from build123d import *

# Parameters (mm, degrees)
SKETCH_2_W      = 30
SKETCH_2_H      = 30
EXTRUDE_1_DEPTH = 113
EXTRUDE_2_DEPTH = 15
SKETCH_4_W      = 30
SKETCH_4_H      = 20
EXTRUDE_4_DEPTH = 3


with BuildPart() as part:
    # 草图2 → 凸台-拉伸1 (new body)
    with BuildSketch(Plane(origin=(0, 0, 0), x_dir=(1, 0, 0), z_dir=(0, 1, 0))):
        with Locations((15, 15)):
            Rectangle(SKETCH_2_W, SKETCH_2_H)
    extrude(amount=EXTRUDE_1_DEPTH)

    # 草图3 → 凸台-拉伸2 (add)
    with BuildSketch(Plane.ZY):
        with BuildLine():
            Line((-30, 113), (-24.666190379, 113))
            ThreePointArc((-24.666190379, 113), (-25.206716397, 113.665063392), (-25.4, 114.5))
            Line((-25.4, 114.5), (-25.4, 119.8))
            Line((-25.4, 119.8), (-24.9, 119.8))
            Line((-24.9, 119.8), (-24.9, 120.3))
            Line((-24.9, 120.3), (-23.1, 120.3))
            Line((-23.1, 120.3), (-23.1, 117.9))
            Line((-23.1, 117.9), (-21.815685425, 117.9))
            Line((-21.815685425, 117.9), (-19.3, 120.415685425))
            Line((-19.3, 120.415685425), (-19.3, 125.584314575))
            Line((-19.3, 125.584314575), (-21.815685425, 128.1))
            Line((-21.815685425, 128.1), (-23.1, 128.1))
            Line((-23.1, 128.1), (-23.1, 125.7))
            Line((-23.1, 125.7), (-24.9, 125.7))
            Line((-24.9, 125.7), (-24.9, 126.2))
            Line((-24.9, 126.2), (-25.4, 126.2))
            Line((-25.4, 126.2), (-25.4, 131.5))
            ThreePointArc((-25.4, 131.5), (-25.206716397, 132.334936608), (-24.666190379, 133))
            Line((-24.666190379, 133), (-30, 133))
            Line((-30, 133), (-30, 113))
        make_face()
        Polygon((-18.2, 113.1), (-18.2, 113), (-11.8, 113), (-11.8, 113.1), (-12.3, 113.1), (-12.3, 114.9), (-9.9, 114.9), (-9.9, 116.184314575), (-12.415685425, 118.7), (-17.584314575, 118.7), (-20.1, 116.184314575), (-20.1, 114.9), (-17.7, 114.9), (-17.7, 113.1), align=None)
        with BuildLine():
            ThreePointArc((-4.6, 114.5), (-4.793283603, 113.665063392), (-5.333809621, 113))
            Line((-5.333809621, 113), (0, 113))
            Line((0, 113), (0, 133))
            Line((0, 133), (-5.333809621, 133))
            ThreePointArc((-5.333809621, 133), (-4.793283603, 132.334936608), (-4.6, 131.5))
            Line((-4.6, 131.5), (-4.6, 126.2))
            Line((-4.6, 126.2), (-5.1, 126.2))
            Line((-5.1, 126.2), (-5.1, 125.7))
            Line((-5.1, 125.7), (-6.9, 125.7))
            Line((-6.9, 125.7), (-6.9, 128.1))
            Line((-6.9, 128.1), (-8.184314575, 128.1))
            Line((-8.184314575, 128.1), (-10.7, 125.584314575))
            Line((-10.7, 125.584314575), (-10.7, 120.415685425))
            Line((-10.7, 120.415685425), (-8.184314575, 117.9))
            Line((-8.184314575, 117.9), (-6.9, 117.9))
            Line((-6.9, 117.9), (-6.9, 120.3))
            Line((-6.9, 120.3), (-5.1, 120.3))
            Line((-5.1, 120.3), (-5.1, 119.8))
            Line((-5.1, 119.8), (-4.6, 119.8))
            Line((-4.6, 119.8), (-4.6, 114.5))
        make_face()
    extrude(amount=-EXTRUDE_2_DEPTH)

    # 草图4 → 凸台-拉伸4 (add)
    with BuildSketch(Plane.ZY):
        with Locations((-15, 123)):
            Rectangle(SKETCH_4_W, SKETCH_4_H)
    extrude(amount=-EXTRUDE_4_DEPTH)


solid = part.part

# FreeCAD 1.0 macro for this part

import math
import FreeCAD as App
import Part
import Sketcher
from FreeCAD import Vector

doc = App.newDocument("Part")
body = doc.addObject("PartDesign::Body", "Body")

sketch1 = doc.addObject("Sketcher::SketchObject", "Sketch")
body.addObject(sketch1)
sketch1.AttachmentSupport = (doc.XZ_Plane, [""])
sketch1.MapMode = "FlatFace"
sketch1.addGeometry(Part.LineSegment(Vector(0, -30, 0), Vector(0, 0, 0)), False)
sketch1.addGeometry(Part.LineSegment(Vector(0, 0, 0), Vector(30, 0, 0)), False)
sketch1.addGeometry(Part.LineSegment(Vector(30, 0, 0), Vector(30, -30, 0)), False)
sketch1.addGeometry(Part.LineSegment(Vector(30, -30, 0), Vector(0, -30, 0)), False)
sketch1.addConstraint(Sketcher.Constraint("Coincident", 0, 2, 1, 1))
sketch1.addConstraint(Sketcher.Constraint("Coincident", 1, 2, 2, 1))
sketch1.addConstraint(Sketcher.Constraint("Coincident", 2, 2, 3, 1))
sketch1.addConstraint(Sketcher.Constraint("Coincident", 3, 2, 0, 1))
sketch1.addConstraint(Sketcher.Constraint("Vertical", 0))
sketch1.addConstraint(Sketcher.Constraint("Horizontal", 1))
sketch1.addConstraint(Sketcher.Constraint("Vertical", 2))
sketch1.addConstraint(Sketcher.Constraint("Horizontal", 3))
sketch1.addConstraint(Sketcher.Constraint("Coincident", 0, 2, -1, 1))
sketch1.addConstraint(Sketcher.Constraint("Equal", 3, 0))
sketch1.addConstraint(Sketcher.Constraint("DistanceX", 1, 1, 1, 2, 30.0))
pad1 = doc.addObject("PartDesign::Pad", "Pad")
body.addObject(pad1)
pad1.Profile = sketch1
pad1.Length = 113
pad1.Reversed = True

sketch2 = doc.addObject("Sketcher::SketchObject", "Sketch001")
body.addObject(sketch2)
sketch2.AttachmentSupport = (doc.YZ_Plane, [""])
sketch2.MapMode = "FlatFace"
sketch2.addGeometry(Part.LineSegment(Vector(113, -30, 0), Vector(113, -24.67, 0)), False)
sketch2.addGeometry(Part.ArcOfCircle(Part.Circle(Vector(114.5, -23.5, 0), Vector(0, 0, 1), 1.9), math.radians(-142), math.radians(-90)), False)
sketch2.addGeometry(Part.LineSegment(Vector(114.5, -25.4, 0), Vector(119.8, -25.4, 0)), False)
sketch2.addGeometry(Part.LineSegment(Vector(119.8, -25.4, 0), Vector(119.8, -24.9, 0)), False)
sketch2.addGeometry(Part.LineSegment(Vector(119.8, -24.9, 0), Vector(120.3, -24.9, 0)), False)
sketch2.addGeometry(Part.LineSegment(Vector(120.3, -24.9, 0), Vector(120.3, -23.1, 0)), False)
sketch2.addGeometry(Part.LineSegment(Vector(120.3, -23.1, 0), Vector(117.9, -23.1, 0)), False)
sketch2.addGeometry(Part.LineSegment(Vector(117.9, -23.1, 0), Vector(117.9, -21.82, 0)), False)
sketch2.addGeometry(Part.LineSegment(Vector(117.9, -21.82, 0), Vector(120.42, -19.3, 0)), False)
sketch2.addGeometry(Part.LineSegment(Vector(120.42, -19.3, 0), Vector(125.58, -19.3, 0)), False)
sketch2.addGeometry(Part.LineSegment(Vector(125.58, -19.3, 0), Vector(128.1, -21.82, 0)), False)
sketch2.addGeometry(Part.LineSegment(Vector(128.1, -21.82, 0), Vector(128.1, -23.1, 0)), False)
sketch2.addGeometry(Part.LineSegment(Vector(128.1, -23.1, 0), Vector(125.7, -23.1, 0)), False)
sketch2.addGeometry(Part.LineSegment(Vector(125.7, -23.1, 0), Vector(125.7, -24.9, 0)), False)
sketch2.addGeometry(Part.LineSegment(Vector(125.7, -24.9, 0), Vector(126.2, -24.9, 0)), False)
sketch2.addGeometry(Part.LineSegment(Vector(126.2, -24.9, 0), Vector(126.2, -25.4, 0)), False)
sketch2.addGeometry(Part.LineSegment(Vector(126.2, -25.4, 0), Vector(131.5, -25.4, 0)), False)
sketch2.addGeometry(Part.ArcOfCircle(Part.Circle(Vector(131.5, -23.5, 0), Vector(0, 0, 1), 1.9), math.radians(-90), math.radians(-38)), False)
sketch2.addGeometry(Part.LineSegment(Vector(133, -24.67, 0), Vector(133, -30, 0)), False)
sketch2.addGeometry(Part.LineSegment(Vector(133, -30, 0), Vector(113, -30, 0)), False)
sketch2.addGeometry(Part.LineSegment(Vector(113.1, -18.2, 0), Vector(113, -18.2, 0)), False)
sketch2.addGeometry(Part.LineSegment(Vector(113, -18.2, 0), Vector(113, -11.8, 0)), False)
sketch2.addGeometry(Part.LineSegment(Vector(113, -11.8, 0), Vector(113.1, -11.8, 0)), False)
sketch2.addGeometry(Part.LineSegment(Vector(113.1, -11.8, 0), Vector(113.1, -12.3, 0)), False)
sketch2.addGeometry(Part.LineSegment(Vector(113.1, -12.3, 0), Vector(114.9, -12.3, 0)), False)
sketch2.addGeometry(Part.LineSegment(Vector(114.9, -12.3, 0), Vector(114.9, -9.9, 0)), False)
sketch2.addGeometry(Part.LineSegment(Vector(114.9, -9.9, 0), Vector(116.18, -9.9, 0)), False)
sketch2.addGeometry(Part.LineSegment(Vector(116.18, -9.9, 0), Vector(118.7, -12.42, 0)), False)
sketch2.addGeometry(Part.LineSegment(Vector(118.7, -12.42, 0), Vector(118.7, -17.58, 0)), False)
sketch2.addGeometry(Part.LineSegment(Vector(118.7, -17.58, 0), Vector(116.18, -20.1, 0)), False)
sketch2.addGeometry(Part.LineSegment(Vector(116.18, -20.1, 0), Vector(114.9, -20.1, 0)), False)
sketch2.addGeometry(Part.LineSegment(Vector(114.9, -20.1, 0), Vector(114.9, -17.7, 0)), False)
sketch2.addGeometry(Part.LineSegment(Vector(114.9, -17.7, 0), Vector(113.1, -17.7, 0)), False)
sketch2.addGeometry(Part.LineSegment(Vector(113.1, -17.7, 0), Vector(113.1, -18.2, 0)), False)
sketch2.addGeometry(Part.ArcOfCircle(Part.Circle(Vector(114.5, -6.5, 0), Vector(0, 0, 1), 1.9), math.radians(90), math.radians(142)), False)
sketch2.addGeometry(Part.LineSegment(Vector(113, -5.33, 0), Vector(113, 0, 0)), False)
sketch2.addGeometry(Part.LineSegment(Vector(113, 0, 0), Vector(133, 0, 0)), False)
sketch2.addGeometry(Part.LineSegment(Vector(133, 0, 0), Vector(133, -5.33, 0)), False)
sketch2.addGeometry(Part.ArcOfCircle(Part.Circle(Vector(131.5, -6.5, 0), Vector(0, 0, 1), 1.9), math.radians(38), math.radians(90)), False)
sketch2.addGeometry(Part.LineSegment(Vector(131.5, -4.6, 0), Vector(126.2, -4.6, 0)), False)
sketch2.addGeometry(Part.LineSegment(Vector(126.2, -4.6, 0), Vector(126.2, -5.1, 0)), False)
sketch2.addGeometry(Part.LineSegment(Vector(126.2, -5.1, 0), Vector(125.7, -5.1, 0)), False)
sketch2.addGeometry(Part.LineSegment(Vector(125.7, -5.1, 0), Vector(125.7, -6.9, 0)), False)
sketch2.addGeometry(Part.LineSegment(Vector(125.7, -6.9, 0), Vector(128.1, -6.9, 0)), False)
sketch2.addGeometry(Part.LineSegment(Vector(128.1, -6.9, 0), Vector(128.1, -8.18, 0)), False)
sketch2.addGeometry(Part.LineSegment(Vector(128.1, -8.18, 0), Vector(125.58, -10.7, 0)), False)
sketch2.addGeometry(Part.LineSegment(Vector(125.58, -10.7, 0), Vector(120.42, -10.7, 0)), False)
sketch2.addGeometry(Part.LineSegment(Vector(120.42, -10.7, 0), Vector(117.9, -8.18, 0)), False)
sketch2.addGeometry(Part.LineSegment(Vector(117.9, -8.18, 0), Vector(117.9, -6.9, 0)), False)
sketch2.addGeometry(Part.LineSegment(Vector(117.9, -6.9, 0), Vector(120.3, -6.9, 0)), False)
sketch2.addGeometry(Part.LineSegment(Vector(120.3, -6.9, 0), Vector(120.3, -5.1, 0)), False)
sketch2.addGeometry(Part.LineSegment(Vector(120.3, -5.1, 0), Vector(119.8, -5.1, 0)), False)
sketch2.addGeometry(Part.LineSegment(Vector(119.8, -5.1, 0), Vector(119.8, -4.6, 0)), False)
sketch2.addGeometry(Part.LineSegment(Vector(119.8, -4.6, 0), Vector(114.5, -4.6, 0)), False)
sketch2.addConstraint(Sketcher.Constraint("Coincident", 0, 2, 1, 1))
sketch2.addConstraint(Sketcher.Constraint("Tangent", 1, 2, 2, 1))
sketch2.addConstraint(Sketcher.Constraint("Coincident", 2, 2, 3, 1))
sketch2.addConstraint(Sketcher.Constraint("Coincident", 3, 2, 4, 1))
sketch2.addConstraint(Sketcher.Constraint("Coincident", 4, 2, 5, 1))
sketch2.addConstraint(Sketcher.Constraint("Coincident", 5, 2, 6, 1))
sketch2.addConstraint(Sketcher.Constraint("Coincident", 6, 2, 7, 1))
sketch2.addConstraint(Sketcher.Constraint("Coincident", 7, 2, 8, 1))
sketch2.addConstraint(Sketcher.Constraint("Coincident", 8, 2, 9, 1))
sketch2.addConstraint(Sketcher.Constraint("Coincident", 9, 2, 10, 1))
sketch2.addConstraint(Sketcher.Constraint("Coincident", 10, 2, 11, 1))
sketch2.addConstraint(Sketcher.Constraint("Coincident", 11, 2, 12, 1))
sketch2.addConstraint(Sketcher.Constraint("Coincident", 12, 2, 13, 1))
sketch2.addConstraint(Sketcher.Constraint("Coincident", 13, 2, 14, 1))
sketch2.addConstraint(Sketcher.Constraint("Coincident", 14, 2, 15, 1))
sketch2.addConstraint(Sketcher.Constraint("Coincident", 15, 2, 16, 1))
sketch2.addConstraint(Sketcher.Constraint("Tangent", 16, 2, 17, 1))
sketch2.addConstraint(Sketcher.Constraint("Coincident", 17, 2, 18, 1))
sketch2.addConstraint(Sketcher.Constraint("Coincident", 18, 2, 19, 1))
sketch2.addConstraint(Sketcher.Constraint("Coincident", 19, 2, 0, 1))
sketch2.addConstraint(Sketcher.Constraint("Coincident", 20, 2, 21, 1))
sketch2.addConstraint(Sketcher.Constraint("Coincident", 21, 2, 22, 1))
sketch2.addConstraint(Sketcher.Constraint("Coincident", 22, 2, 23, 1))
sketch2.addConstraint(Sketcher.Constraint("Coincident", 23, 2, 24, 1))
sketch2.addConstraint(Sketcher.Constraint("Coincident", 24, 2, 25, 1))
sketch2.addConstraint(Sketcher.Constraint("Coincident", 25, 2, 26, 1))
sketch2.addConstraint(Sketcher.Constraint("Coincident", 26, 2, 27, 1))
sketch2.addConstraint(Sketcher.Constraint("Coincident", 27, 2, 28, 1))
sketch2.addConstraint(Sketcher.Constraint("Coincident", 28, 2, 29, 1))
sketch2.addConstraint(Sketcher.Constraint("Coincident", 29, 2, 30, 1))
sketch2.addConstraint(Sketcher.Constraint("Coincident", 30, 2, 31, 1))
sketch2.addConstraint(Sketcher.Constraint("Coincident", 31, 2, 32, 1))
sketch2.addConstraint(Sketcher.Constraint("Coincident", 32, 2, 33, 1))
sketch2.addConstraint(Sketcher.Constraint("Coincident", 33, 2, 20, 1))
sketch2.addConstraint(Sketcher.Constraint("Coincident", 34, 2, 35, 1))
sketch2.addConstraint(Sketcher.Constraint("Coincident", 35, 2, 36, 1))
sketch2.addConstraint(Sketcher.Constraint("Coincident", 36, 2, 37, 1))
sketch2.addConstraint(Sketcher.Constraint("Coincident", 37, 2, 38, 1))
sketch2.addConstraint(Sketcher.Constraint("Tangent", 38, 2, 39, 1))
sketch2.addConstraint(Sketcher.Constraint("Coincident", 39, 2, 40, 1))
sketch2.addConstraint(Sketcher.Constraint("Coincident", 40, 2, 41, 1))
sketch2.addConstraint(Sketcher.Constraint("Coincident", 41, 2, 42, 1))
sketch2.addConstraint(Sketcher.Constraint("Coincident", 42, 2, 43, 1))
sketch2.addConstraint(Sketcher.Constraint("Coincident", 43, 2, 44, 1))
sketch2.addConstraint(Sketcher.Constraint("Coincident", 44, 2, 45, 1))
sketch2.addConstraint(Sketcher.Constraint("Coincident", 45, 2, 46, 1))
sketch2.addConstraint(Sketcher.Constraint("Coincident", 46, 2, 47, 1))
sketch2.addConstraint(Sketcher.Constraint("Coincident", 47, 2, 48, 1))
sketch2.addConstraint(Sketcher.Constraint("Coincident", 48, 2, 49, 1))
sketch2.addConstraint(Sketcher.Constraint("Coincident", 49, 2, 50, 1))
sketch2.addConstraint(Sketcher.Constraint("Coincident", 50, 2, 51, 1))
sketch2.addConstraint(Sketcher.Constraint("Coincident", 51, 2, 52, 1))
sketch2.addConstraint(Sketcher.Constraint("Coincident", 52, 2, 53, 1))
sketch2.addConstraint(Sketcher.Constraint("Tangent", 53, 2, 34, 1))
sketch2.addConstraint(Sketcher.Constraint("Vertical", 0))
sketch2.addConstraint(Sketcher.Constraint("Horizontal", 2))
sketch2.addConstraint(Sketcher.Constraint("Vertical", 3))
sketch2.addConstraint(Sketcher.Constraint("Horizontal", 4))
sketch2.addConstraint(Sketcher.Constraint("Vertical", 5))
sketch2.addConstraint(Sketcher.Constraint("Horizontal", 6))
sketch2.addConstraint(Sketcher.Constraint("Vertical", 7))
sketch2.addConstraint(Sketcher.Constraint("Horizontal", 9))
sketch2.addConstraint(Sketcher.Constraint("Vertical", 11))
sketch2.addConstraint(Sketcher.Constraint("Horizontal", 12))
sketch2.addConstraint(Sketcher.Constraint("Vertical", 13))
sketch2.addConstraint(Sketcher.Constraint("Horizontal", 14))
sketch2.addConstraint(Sketcher.Constraint("Vertical", 15))
sketch2.addConstraint(Sketcher.Constraint("Horizontal", 16))
sketch2.addConstraint(Sketcher.Constraint("Vertical", 18))
sketch2.addConstraint(Sketcher.Constraint("Horizontal", 19))
sketch2.addConstraint(Sketcher.Constraint("Horizontal", 20))
sketch2.addConstraint(Sketcher.Constraint("Vertical", 21))
sketch2.addConstraint(Sketcher.Constraint("Horizontal", 22))
sketch2.addConstraint(Sketcher.Constraint("Vertical", 23))
sketch2.addConstraint(Sketcher.Constraint("Horizontal", 24))
sketch2.addConstraint(Sketcher.Constraint("Vertical", 25))
sketch2.addConstraint(Sketcher.Constraint("Horizontal", 26))
sketch2.addConstraint(Sketcher.Constraint("Vertical", 28))
sketch2.addConstraint(Sketcher.Constraint("Horizontal", 30))
sketch2.addConstraint(Sketcher.Constraint("Vertical", 31))
sketch2.addConstraint(Sketcher.Constraint("Horizontal", 32))
sketch2.addConstraint(Sketcher.Constraint("Vertical", 33))
sketch2.addConstraint(Sketcher.Constraint("Vertical", 35))
sketch2.addConstraint(Sketcher.Constraint("Horizontal", 36))
sketch2.addConstraint(Sketcher.Constraint("Vertical", 37))
sketch2.addConstraint(Sketcher.Constraint("Horizontal", 39))
sketch2.addConstraint(Sketcher.Constraint("Vertical", 40))
sketch2.addConstraint(Sketcher.Constraint("Horizontal", 41))
sketch2.addConstraint(Sketcher.Constraint("Vertical", 42))
sketch2.addConstraint(Sketcher.Constraint("Horizontal", 43))
sketch2.addConstraint(Sketcher.Constraint("Vertical", 44))
sketch2.addConstraint(Sketcher.Constraint("Horizontal", 46))
sketch2.addConstraint(Sketcher.Constraint("Vertical", 48))
sketch2.addConstraint(Sketcher.Constraint("Horizontal", 49))
sketch2.addConstraint(Sketcher.Constraint("Vertical", 50))
sketch2.addConstraint(Sketcher.Constraint("Horizontal", 51))
sketch2.addConstraint(Sketcher.Constraint("Vertical", 52))
sketch2.addConstraint(Sketcher.Constraint("Horizontal", 53))
sketch2.addConstraint(Sketcher.Constraint("Equal", 1, 17))
sketch2.addConstraint(Sketcher.Constraint("Equal", 17, 34))
sketch2.addConstraint(Sketcher.Constraint("Equal", 34, 38))
sketch2.addConstraint(Sketcher.Constraint("PointOnObject", 35, 2, -1))
sketch2.addConstraint(Sketcher.Constraint("Perpendicular", 8, 10))
sketch2.addConstraint(Sketcher.Constraint("Parallel", 10, 27))
sketch2.addConstraint(Sketcher.Constraint("Perpendicular", 27, 29))
sketch2.addConstraint(Sketcher.Constraint("Parallel", 29, 45))
sketch2.addConstraint(Sketcher.Constraint("Perpendicular", 45, 47))
sketch2.addConstraint(Sketcher.Constraint("Horizontal", 1, 3, 17, 3))
sketch2.addConstraint(Sketcher.Constraint("Horizontal", 34, 3, 38, 3))
sketch2.addConstraint(Sketcher.Constraint("Horizontal", 7, 2, 10, 2))
sketch2.addConstraint(Sketcher.Constraint("Horizontal", 6, 2, 11, 2))
sketch2.addConstraint(Sketcher.Constraint("Horizontal", 4, 2, 13, 2))
sketch2.addConstraint(Sketcher.Constraint("Horizontal", 0, 2, 17, 2))
sketch2.addConstraint(Sketcher.Constraint("Horizontal", 34, 2, 37, 2))
sketch2.addConstraint(Sketcher.Constraint("Horizontal", 44, 2, 47, 2))
sketch2.addConstraint(Sketcher.Constraint("Horizontal", 43, 2, 48, 2))
sketch2.addConstraint(Sketcher.Constraint("Horizontal", 41, 2, 50, 2))
sketch2.addConstraint(Sketcher.Constraint("Vertical", 1, 3, 34, 3))
sketch2.addConstraint(Sketcher.Constraint("Vertical", 17, 3, 38, 3))
sketch2.addConstraint(Sketcher.Constraint("Vertical", 19, 2, 20, 2))
sketch2.addConstraint(Sketcher.Constraint("Vertical", 26, 2, 29, 2))
sketch2.addConstraint(Sketcher.Constraint("Vertical", 25, 2, 30, 2))
sketch2.addConstraint(Sketcher.Constraint("Vertical", 23, 2, 32, 2))
sketch2.addConstraint(Sketcher.Constraint("Vertical", 21, 2, 34, 2))
sketch2.addConstraint(Sketcher.Constraint("Vertical", 15, 2, 39, 2))
sketch2.addConstraint(Sketcher.Constraint("Vertical", 13, 2, 41, 2))
sketch2.addConstraint(Sketcher.Constraint("Vertical", 11, 2, 43, 2))
sketch2.addConstraint(Sketcher.Constraint("Vertical", 9, 2, 45, 2))
sketch2.addConstraint(Sketcher.Constraint("Vertical", 8, 2, 46, 2))
sketch2.addConstraint(Sketcher.Constraint("Vertical", 7, 2, 47, 2))
sketch2.addConstraint(Sketcher.Constraint("Vertical", 5, 2, 49, 2))
sketch2.addConstraint(Sketcher.Constraint("Vertical", 3, 2, 51, 2))
sketch2.addConstraint(Sketcher.Constraint("Equal", 6, 12))
sketch2.addConstraint(Sketcher.Constraint("Equal", 4, 14))
sketch2.addConstraint(Sketcher.Constraint("Equal", 2, 16))
sketch2.addConstraint(Sketcher.Constraint("Equal", 51, 3))
sketch2.addConstraint(Sketcher.Constraint("Equal", 32, 5))
sketch2.addConstraint(Sketcher.Constraint("Equal", 30, 7))
sketch2.addConstraint(Sketcher.Constraint("Equal", 15, 23))
sketch2.addConstraint(Sketcher.Constraint("Equal", 49, 25))
sketch2.addConstraint(Sketcher.Constraint("Equal", 46, 28))
sketch2.addConstraint(Sketcher.Constraint("Equal", 25, 31))
sketch2.addConstraint(Sketcher.Constraint("Equal", 23, 33))
sketch2.addConstraint(Sketcher.Constraint("Equal", 18, 35))
sketch2.addConstraint(Sketcher.Constraint("Equal", 33, 40))
sketch2.addConstraint(Sketcher.Constraint("Equal", 13, 42))
sketch2.addConstraint(Sketcher.Constraint("Equal", 11, 44))
sketch2.addConstraint(Sketcher.Constraint("Equal", 10, 27))
sketch2.addConstraint(Sketcher.Constraint("Radius", 1, 1.9))
sketch2.addConstraint(Sketcher.Constraint("DistanceX", 19, 2, 19, 1, 20.0))
sketch2.addConstraint(Sketcher.Constraint("DistanceX", 2, 1, 2, 2, 5.3))
sketch2.addConstraint(Sketcher.Constraint("DistanceX", 4, 1, 4, 2, 0.5))
sketch2.addConstraint(Sketcher.Constraint("DistanceX", 6, 2, 6, 1, 2.4))
sketch2.addConstraint(Sketcher.Constraint("DistanceX", 20, 2, 20, 1, 0.1))
sketch2.addConstraint(Sketcher.Constraint("DistanceX", 24, 1, 24, 2, 1.8))
sketch2.addConstraint(Sketcher.Constraint("DistanceY", 21, 1, 21, 2, 6.4))
sketch2.addConstraint(Sketcher.Constraint("DistanceX", -1, 1, 0, 2, 113.0))
sketch2.addConstraint(Sketcher.Constraint("DistanceY", 18, 2, -1, 1, 30.0))
sketch2.addConstraint(Sketcher.Constraint("DistanceY", 1, 3, 34, 3, 17.0))
sketch2.addConstraint(Sketcher.Constraint("DistanceY", 8, 2, 23, 2, 7.0))
sketch2.addConstraint(Sketcher.Constraint("DistanceY", 6, 2, 29, 2, 3.0))
sketch2.addConstraint(Sketcher.Constraint("DistanceX", 9, 1, 9, 2, 5.168629))
pad2 = doc.addObject("PartDesign::Pad", "Pad001")
body.addObject(pad2)
pad2.Profile = sketch2
pad2.Length = 15

sketch3 = doc.addObject("Sketcher::SketchObject", "Sketch002")
body.addObject(sketch3)
sketch3.AttachmentSupport = (doc.YZ_Plane, [""])
sketch3.MapMode = "FlatFace"
sketch3.addGeometry(Part.LineSegment(Vector(133, -30, 0), Vector(113, -30, 0)), False)
sketch3.addGeometry(Part.LineSegment(Vector(113, -30, 0), Vector(113, 0, 0)), False)
sketch3.addGeometry(Part.LineSegment(Vector(113, 0, 0), Vector(133, 0, 0)), False)
sketch3.addGeometry(Part.LineSegment(Vector(133, 0, 0), Vector(133, -30, 0)), False)
sketch3.addConstraint(Sketcher.Constraint("Coincident", 0, 2, 1, 1))
sketch3.addConstraint(Sketcher.Constraint("Coincident", 1, 2, 2, 1))
sketch3.addConstraint(Sketcher.Constraint("Coincident", 2, 2, 3, 1))
sketch3.addConstraint(Sketcher.Constraint("Coincident", 3, 2, 0, 1))
sketch3.addConstraint(Sketcher.Constraint("Horizontal", 0))
sketch3.addConstraint(Sketcher.Constraint("Vertical", 1))
sketch3.addConstraint(Sketcher.Constraint("Horizontal", 2))
sketch3.addConstraint(Sketcher.Constraint("Vertical", 3))
sketch3.addConstraint(Sketcher.Constraint("PointOnObject", 1, 2, -1))
sketch3.addConstraint(Sketcher.Constraint("DistanceX", 0, 2, 0, 1, 20.0))
sketch3.addConstraint(Sketcher.Constraint("DistanceY", 1, 1, 1, 2, 30.0))
sketch3.addConstraint(Sketcher.Constraint("DistanceX", -1, 1, 0, 2, 113.0))
pad3 = doc.addObject("PartDesign::Pad", "Pad002")
body.addObject(pad3)
pad3.Profile = sketch3
pad3.Length = 3

doc.recompute()
